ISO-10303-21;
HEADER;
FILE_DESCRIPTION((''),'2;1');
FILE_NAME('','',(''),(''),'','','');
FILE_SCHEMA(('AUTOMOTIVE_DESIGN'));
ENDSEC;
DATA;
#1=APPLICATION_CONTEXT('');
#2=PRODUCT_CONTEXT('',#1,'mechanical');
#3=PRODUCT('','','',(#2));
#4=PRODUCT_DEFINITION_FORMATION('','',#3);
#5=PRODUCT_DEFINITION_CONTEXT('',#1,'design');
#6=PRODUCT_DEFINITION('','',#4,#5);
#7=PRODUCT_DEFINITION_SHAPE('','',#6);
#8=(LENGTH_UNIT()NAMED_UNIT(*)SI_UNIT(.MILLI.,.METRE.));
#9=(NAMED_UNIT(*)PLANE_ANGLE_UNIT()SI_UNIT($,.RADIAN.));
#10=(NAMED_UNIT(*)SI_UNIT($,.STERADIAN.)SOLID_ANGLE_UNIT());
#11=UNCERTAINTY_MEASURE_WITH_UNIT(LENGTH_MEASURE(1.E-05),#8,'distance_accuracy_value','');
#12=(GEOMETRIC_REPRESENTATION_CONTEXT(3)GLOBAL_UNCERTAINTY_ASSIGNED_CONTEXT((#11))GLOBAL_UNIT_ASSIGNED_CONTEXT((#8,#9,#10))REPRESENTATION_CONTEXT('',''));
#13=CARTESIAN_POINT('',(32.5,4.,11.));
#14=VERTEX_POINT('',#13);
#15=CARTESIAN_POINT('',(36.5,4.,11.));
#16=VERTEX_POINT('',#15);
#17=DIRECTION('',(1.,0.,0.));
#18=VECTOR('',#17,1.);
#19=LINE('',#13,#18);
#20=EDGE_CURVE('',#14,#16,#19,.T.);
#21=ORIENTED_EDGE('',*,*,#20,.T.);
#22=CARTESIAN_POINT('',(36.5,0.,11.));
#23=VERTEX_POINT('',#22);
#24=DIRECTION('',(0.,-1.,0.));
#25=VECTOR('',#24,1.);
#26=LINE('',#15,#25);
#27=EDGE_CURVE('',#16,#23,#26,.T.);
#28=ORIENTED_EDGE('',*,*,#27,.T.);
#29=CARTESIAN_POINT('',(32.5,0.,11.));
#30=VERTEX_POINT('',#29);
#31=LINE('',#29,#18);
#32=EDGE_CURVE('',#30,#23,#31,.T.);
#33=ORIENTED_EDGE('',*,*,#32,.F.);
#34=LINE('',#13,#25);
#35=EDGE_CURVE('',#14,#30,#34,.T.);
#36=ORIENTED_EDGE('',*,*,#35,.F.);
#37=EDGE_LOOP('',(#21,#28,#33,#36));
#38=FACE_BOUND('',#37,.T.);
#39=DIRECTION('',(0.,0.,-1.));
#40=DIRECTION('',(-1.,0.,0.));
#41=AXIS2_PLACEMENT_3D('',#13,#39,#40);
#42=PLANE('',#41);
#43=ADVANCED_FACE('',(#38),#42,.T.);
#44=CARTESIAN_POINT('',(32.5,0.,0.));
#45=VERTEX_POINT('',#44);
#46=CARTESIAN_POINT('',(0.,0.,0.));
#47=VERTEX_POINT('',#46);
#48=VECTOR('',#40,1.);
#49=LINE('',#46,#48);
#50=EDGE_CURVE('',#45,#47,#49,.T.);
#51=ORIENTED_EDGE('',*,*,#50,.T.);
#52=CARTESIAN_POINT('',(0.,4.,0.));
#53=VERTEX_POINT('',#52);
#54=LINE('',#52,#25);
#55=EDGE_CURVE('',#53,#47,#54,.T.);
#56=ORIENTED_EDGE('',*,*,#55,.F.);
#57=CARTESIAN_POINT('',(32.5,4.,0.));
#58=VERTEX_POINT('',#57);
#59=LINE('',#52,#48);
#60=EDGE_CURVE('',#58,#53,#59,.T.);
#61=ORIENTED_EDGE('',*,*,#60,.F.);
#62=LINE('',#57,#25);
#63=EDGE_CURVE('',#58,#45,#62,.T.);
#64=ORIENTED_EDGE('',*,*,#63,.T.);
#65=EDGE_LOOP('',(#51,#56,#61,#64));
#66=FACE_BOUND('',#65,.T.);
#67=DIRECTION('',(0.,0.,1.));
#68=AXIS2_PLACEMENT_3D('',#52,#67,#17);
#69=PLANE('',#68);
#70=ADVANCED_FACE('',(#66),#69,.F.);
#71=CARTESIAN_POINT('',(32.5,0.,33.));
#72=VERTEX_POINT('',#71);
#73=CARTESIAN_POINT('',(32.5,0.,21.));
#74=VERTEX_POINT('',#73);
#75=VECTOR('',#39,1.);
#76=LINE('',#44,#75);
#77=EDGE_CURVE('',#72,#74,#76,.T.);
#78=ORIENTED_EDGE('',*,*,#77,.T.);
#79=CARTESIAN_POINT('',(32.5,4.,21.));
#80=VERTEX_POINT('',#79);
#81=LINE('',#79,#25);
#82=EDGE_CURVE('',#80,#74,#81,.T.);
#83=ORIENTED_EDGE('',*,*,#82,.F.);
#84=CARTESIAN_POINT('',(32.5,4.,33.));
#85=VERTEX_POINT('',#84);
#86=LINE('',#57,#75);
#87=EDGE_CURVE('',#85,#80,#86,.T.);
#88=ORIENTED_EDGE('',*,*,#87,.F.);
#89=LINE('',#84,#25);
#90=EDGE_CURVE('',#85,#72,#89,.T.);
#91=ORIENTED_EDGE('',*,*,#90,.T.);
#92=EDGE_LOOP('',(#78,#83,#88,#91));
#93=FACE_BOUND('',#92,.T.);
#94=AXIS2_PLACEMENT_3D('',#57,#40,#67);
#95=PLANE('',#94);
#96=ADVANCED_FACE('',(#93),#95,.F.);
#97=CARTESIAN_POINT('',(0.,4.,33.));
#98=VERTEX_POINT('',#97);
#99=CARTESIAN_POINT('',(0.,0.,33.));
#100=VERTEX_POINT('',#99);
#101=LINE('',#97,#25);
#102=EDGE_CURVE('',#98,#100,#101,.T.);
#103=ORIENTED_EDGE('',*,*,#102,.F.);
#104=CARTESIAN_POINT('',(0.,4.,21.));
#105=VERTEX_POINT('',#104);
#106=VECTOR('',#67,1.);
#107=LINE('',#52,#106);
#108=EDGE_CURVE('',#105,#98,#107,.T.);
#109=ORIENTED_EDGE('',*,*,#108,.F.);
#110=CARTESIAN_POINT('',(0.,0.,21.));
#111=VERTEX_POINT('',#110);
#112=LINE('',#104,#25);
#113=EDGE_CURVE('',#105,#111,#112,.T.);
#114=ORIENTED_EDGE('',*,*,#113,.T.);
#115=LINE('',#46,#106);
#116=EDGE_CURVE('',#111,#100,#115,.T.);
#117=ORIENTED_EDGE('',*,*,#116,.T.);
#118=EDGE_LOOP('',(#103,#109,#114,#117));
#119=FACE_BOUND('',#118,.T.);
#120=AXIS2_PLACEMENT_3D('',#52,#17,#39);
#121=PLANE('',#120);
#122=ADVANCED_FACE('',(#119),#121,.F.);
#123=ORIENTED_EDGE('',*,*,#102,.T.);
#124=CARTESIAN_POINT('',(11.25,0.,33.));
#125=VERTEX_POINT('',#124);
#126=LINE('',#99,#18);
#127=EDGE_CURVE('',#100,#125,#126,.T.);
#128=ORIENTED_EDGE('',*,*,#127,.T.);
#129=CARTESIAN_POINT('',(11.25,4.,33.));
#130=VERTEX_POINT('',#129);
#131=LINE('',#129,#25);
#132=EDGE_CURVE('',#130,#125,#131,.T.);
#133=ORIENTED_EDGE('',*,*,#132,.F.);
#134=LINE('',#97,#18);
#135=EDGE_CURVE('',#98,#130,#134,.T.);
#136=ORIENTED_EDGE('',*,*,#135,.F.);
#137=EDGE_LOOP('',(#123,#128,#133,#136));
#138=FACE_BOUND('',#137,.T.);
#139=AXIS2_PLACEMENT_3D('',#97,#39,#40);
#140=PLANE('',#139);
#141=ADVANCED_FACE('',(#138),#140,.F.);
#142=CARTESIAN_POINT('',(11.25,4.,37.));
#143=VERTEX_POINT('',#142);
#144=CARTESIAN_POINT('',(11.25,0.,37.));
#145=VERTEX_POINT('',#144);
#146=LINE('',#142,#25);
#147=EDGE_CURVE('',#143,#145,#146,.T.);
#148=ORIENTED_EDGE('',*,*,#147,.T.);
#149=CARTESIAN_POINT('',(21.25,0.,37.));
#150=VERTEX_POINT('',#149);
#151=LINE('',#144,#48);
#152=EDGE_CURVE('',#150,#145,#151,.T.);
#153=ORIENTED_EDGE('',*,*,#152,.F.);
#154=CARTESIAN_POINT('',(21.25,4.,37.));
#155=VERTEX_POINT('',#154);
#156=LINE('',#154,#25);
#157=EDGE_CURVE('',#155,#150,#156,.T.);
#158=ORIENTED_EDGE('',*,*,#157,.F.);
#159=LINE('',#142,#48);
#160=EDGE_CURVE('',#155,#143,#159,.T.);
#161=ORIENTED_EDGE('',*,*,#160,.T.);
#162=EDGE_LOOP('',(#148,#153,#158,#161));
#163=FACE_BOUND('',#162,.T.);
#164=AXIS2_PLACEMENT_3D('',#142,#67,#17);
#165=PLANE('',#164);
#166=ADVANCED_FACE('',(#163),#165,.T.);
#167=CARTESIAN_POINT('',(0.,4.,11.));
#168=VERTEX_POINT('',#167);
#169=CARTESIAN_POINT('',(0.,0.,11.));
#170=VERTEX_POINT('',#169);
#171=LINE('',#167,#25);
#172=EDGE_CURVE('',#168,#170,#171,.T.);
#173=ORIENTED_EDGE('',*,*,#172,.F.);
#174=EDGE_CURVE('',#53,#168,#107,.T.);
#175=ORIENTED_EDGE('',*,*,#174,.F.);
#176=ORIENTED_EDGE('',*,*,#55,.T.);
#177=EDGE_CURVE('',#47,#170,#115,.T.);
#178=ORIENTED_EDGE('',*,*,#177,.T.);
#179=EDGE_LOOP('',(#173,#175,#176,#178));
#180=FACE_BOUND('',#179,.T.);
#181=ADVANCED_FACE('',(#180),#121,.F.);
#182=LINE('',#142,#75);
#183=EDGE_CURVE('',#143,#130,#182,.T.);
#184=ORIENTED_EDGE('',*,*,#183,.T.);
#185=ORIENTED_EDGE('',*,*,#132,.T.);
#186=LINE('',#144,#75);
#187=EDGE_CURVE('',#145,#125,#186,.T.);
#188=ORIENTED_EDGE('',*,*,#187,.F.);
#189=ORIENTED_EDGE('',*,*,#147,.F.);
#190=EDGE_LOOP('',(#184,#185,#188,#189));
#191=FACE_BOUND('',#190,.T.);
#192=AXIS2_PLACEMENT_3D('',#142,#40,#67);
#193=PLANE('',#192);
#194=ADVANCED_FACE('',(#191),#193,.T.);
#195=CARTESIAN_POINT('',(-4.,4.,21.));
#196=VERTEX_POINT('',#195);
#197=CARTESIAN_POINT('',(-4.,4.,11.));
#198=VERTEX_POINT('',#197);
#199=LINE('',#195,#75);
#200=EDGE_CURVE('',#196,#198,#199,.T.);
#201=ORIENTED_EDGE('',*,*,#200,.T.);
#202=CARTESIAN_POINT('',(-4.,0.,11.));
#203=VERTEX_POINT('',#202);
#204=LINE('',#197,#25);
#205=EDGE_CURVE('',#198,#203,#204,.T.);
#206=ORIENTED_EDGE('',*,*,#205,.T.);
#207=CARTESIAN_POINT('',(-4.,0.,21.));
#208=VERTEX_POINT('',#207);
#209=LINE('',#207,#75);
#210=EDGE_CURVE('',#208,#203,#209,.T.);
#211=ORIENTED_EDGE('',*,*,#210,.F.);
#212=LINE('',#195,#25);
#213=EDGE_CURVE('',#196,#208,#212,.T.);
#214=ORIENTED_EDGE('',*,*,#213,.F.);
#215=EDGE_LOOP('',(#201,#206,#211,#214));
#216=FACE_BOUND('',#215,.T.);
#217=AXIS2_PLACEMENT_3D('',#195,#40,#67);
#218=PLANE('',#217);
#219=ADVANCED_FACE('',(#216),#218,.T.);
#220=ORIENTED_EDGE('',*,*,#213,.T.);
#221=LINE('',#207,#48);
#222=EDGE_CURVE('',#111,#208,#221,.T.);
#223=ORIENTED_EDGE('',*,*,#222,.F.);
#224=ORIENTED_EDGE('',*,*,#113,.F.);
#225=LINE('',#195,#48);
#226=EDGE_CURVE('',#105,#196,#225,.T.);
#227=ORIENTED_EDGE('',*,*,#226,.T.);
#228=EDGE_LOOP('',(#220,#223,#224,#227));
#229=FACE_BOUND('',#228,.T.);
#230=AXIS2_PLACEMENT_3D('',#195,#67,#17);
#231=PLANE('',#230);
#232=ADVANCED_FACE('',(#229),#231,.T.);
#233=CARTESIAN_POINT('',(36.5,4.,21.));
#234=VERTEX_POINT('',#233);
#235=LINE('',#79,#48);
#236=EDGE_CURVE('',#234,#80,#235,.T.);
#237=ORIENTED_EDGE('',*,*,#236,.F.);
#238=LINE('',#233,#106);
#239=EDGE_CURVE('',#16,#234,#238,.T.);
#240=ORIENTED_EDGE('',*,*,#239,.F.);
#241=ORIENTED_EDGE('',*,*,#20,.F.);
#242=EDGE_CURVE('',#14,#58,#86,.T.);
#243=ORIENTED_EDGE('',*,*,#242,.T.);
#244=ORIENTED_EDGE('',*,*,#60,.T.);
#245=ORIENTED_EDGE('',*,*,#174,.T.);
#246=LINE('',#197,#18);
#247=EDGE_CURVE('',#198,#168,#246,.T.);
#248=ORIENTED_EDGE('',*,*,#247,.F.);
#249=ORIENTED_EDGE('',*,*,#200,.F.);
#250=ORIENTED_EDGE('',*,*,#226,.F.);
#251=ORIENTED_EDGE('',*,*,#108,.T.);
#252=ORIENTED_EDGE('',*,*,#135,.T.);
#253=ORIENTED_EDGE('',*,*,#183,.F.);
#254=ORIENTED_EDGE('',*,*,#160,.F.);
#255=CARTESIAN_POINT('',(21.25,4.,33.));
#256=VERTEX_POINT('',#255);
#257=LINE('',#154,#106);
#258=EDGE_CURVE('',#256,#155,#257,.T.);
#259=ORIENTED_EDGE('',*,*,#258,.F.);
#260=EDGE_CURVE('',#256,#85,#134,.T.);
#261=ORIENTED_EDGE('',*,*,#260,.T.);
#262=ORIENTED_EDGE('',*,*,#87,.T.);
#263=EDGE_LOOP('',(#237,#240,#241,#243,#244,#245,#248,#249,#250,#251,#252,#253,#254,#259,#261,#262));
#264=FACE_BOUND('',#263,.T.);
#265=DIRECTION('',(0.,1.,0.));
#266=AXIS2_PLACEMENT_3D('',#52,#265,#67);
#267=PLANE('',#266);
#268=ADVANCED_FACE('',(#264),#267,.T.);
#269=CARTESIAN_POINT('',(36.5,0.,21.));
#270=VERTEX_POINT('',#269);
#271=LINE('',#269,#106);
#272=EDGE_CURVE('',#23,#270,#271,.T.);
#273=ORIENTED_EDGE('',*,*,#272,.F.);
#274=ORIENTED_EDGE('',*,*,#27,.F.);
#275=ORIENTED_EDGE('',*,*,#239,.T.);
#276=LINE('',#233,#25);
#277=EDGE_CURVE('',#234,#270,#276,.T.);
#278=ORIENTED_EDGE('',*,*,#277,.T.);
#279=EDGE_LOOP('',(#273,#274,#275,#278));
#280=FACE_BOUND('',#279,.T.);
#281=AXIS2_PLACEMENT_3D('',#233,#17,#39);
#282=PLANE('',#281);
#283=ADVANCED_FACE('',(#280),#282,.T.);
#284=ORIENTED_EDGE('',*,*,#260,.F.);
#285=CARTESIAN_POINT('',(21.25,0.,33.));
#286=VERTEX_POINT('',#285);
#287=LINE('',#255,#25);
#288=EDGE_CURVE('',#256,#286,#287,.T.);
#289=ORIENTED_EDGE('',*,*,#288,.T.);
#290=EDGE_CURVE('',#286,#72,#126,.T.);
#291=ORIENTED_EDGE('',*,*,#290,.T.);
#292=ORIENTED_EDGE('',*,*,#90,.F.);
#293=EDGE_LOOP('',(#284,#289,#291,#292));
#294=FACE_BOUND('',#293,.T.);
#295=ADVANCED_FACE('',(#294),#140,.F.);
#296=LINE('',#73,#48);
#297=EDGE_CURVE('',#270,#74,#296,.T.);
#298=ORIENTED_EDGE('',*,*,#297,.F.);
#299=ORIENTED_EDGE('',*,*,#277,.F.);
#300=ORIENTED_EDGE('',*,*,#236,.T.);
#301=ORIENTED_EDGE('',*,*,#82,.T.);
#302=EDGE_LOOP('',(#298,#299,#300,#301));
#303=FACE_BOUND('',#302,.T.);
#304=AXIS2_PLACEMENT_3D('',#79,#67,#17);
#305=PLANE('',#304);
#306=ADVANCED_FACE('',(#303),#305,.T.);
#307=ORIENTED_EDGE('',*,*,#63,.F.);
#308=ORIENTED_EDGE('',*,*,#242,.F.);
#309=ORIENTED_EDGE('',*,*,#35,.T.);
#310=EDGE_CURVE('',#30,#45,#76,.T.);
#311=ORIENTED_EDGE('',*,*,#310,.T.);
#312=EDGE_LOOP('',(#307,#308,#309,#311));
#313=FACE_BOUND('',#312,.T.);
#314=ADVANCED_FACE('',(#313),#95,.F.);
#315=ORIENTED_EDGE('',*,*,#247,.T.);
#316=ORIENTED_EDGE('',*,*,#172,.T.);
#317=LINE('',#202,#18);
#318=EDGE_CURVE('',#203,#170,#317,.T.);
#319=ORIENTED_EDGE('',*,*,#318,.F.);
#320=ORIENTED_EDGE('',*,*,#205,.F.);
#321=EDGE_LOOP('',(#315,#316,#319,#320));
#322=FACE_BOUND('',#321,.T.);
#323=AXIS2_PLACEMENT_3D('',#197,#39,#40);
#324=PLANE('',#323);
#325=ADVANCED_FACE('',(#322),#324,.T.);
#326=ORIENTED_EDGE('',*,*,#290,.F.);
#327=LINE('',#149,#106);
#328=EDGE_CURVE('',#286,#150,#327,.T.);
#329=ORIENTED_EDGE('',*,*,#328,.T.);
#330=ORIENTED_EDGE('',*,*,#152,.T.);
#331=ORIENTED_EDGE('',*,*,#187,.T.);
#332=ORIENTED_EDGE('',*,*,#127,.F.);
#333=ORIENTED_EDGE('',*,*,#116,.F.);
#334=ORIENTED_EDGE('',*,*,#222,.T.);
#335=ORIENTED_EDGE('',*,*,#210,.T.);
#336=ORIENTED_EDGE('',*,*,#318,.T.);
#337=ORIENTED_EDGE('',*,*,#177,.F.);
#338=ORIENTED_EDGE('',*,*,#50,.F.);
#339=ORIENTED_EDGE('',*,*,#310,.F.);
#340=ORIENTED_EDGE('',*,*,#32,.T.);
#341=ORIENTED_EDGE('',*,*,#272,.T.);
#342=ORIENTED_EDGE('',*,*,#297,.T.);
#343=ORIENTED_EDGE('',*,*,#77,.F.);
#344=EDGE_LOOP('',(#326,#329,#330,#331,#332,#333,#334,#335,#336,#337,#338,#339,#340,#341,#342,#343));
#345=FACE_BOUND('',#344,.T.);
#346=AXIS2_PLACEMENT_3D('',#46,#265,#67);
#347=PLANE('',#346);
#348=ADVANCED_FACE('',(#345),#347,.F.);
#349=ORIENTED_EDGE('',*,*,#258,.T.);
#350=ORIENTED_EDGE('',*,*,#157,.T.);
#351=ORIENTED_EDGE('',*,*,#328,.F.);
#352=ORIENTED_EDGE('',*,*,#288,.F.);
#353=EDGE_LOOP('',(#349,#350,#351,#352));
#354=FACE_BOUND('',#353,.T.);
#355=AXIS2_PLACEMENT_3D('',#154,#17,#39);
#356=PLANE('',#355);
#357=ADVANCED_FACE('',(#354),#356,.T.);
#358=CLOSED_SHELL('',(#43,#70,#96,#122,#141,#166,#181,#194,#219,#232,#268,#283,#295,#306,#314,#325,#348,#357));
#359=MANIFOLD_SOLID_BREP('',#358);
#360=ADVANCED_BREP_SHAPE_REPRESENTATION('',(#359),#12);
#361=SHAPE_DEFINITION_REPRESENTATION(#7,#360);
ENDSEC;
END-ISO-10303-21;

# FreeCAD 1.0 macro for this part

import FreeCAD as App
import Part
import Sketcher
from FreeCAD import Vector


def add_polygon(sketch, points):
    """Adds a closed chain of lines whose ends are joined by coincident constraints."""
    first, n = sketch.GeometryCount, len(points)
    for a, b in zip(points, points[1:] + points[:1]):
        sketch.addGeometry(Part.LineSegment(App.Vector(*a, 0), App.Vector(*b, 0)), False)
    for i in range(n):
        sketch.addConstraint(Sketcher.Constraint("Coincident", first + i, 2, first + (i + 1) % n, 1))

doc = App.newDocument("Part")
params = doc.addObject("Spreadsheet::Sheet", "Params")
for row, (alias, value) in enumerate([
    ("sketch1_height", "33 mm"),
    ("sketch1_width", "32.5 mm"),
    ("pad1_length", "4 mm"),
    ("sketch2_width", "10 mm"),
    ("sketch2_width2", "4 mm"),
], start=1):
    params.set(f"A{row}", alias)
    params.set(f"B{row}", "=" + value)
    params.setAlias(f"B{row}", alias)

body = doc.addObject("PartDesign::Body", "Body")

# Sketch on XZ plane
sketch1 = doc.addObject("Sketcher::SketchObject", "Sketch")
body.addObject(sketch1)
sketch1.AttachmentSupport = (doc.XZ_Plane, [""])
sketch1.MapMode = "FlatFace"
add_polygon(sketch1, [(0, 0), (0, 33), (32, 33), (32, 0)])  # lines 0-3
sketch1.addConstraint(Sketcher.Constraint("Vertical", 0))
sketch1.addConstraint(Sketcher.Constraint("Horizontal", 1))
sketch1.addConstraint(Sketcher.Constraint("Vertical", 2))
sketch1.addConstraint(Sketcher.Constraint("Horizontal", 3))
sketch1.addConstraint(Sketcher.Constraint("Coincident", 3, 2, -1, 1))
sketch1.addConstraint(Sketcher.Constraint("DistanceY", 0, 1, 0, 2, 33.0))
sketch1.addConstraint(Sketcher.Constraint("DistanceX", 1, 1, 1, 2, 32.5))
sketch1.setExpression("Constraints[9]", "Params.sketch1_height")
sketch1.setExpression("Constraints[10]", "Params.sketch1_width")
pad1 = doc.addObject("PartDesign::Pad", "Pad")
body.addObject(pad1)
pad1.Profile = sketch1
pad1.setExpression("Length", "Params.pad1_length")
pad1.Reversed = True

# Sketch on XZ plane
sketch2 = doc.addObject("Sketcher::SketchObject", "Sketch001")
body.addObject(sketch2)
sketch2.AttachmentSupport = (doc.XZ_Plane, [""])
sketch2.MapMode = "FlatFace"
add_polygon(sketch2, [(11.2, 37), (11.2, 33), (21.2, 33), (21.2, 37)])  # lines 0-3
add_polygon(sketch2, [(32.5, 21), (32.5, 11), (36.5, 11), (36.5, 21)])  # lines 4-7
add_polygon(sketch2, [(-4, 21), (-4, 11), (0, 11), (0, 21)])  # lines 8-11
sketch2.addConstraint(Sketcher.Constraint("Vertical", 0))
sketch2.addConstraint(Sketcher.Constraint("Horizontal", 1))
sketch2.addConstraint(Sketcher.Constraint("Vertical", 2))
sketch2.addConstraint(Sketcher.Constraint("Horizontal", 3))
sketch2.addConstraint(Sketcher.Constraint("Vertical", 4))
sketch2.addConstraint(Sketcher.Constraint("Horizontal", 5))
sketch2.addConstraint(Sketcher.Constraint("Vertical", 6))
sketch2.addConstraint(Sketcher.Constraint("Horizontal", 7))
sketch2.addConstraint(Sketcher.Constraint("Vertical", 8))
sketch2.addConstraint(Sketcher.Constraint("Horizontal", 9))
sketch2.addConstraint(Sketcher.Constraint("Vertical", 10))
sketch2.addConstraint(Sketcher.Constraint("Horizontal", 11))
sketch2.addConstraint(Sketcher.Constraint("PointOnObject", 9, 2, -2))
sketch2.addConstraint(Sketcher.Constraint("Horizontal", 5, 2, 8, 2))
sketch2.addConstraint(Sketcher.Constraint("Horizontal", 7, 2, 10, 2))
sketch2.addConstraint(Sketcher.Constraint("Equal", 7, 9))
sketch2.addConstraint(Sketcher.Constraint("Equal", 11, 0))
sketch2.addConstraint(Sketcher.Constraint("Equal", 3, 4))
sketch2.addConstraint(Sketcher.Constraint("DistanceX", 1, 1, 1, 2, 10.0))
sketch2.addConstraint(Sketcher.Constraint("DistanceX", 5, 1, 5, 2, 4.0))
sketch2.addConstraint(Sketcher.Constraint("DistanceY", -1, 1, 0, 2, 33.0))
sketch2.addConstraint(Sketcher.Constraint("DistanceY", -1, 1, 4, 2, 11.0))
sketch2.addConstraint(Sketcher.Constraint("DistanceX", -1, 1, 4, 2, 32.5))
sketch2.addConstraint(Sketcher.Constraint("DistanceX", -1, 1, 0, 2, 11.25))
sketch2.setExpression("Constraints[30]", "Params.sketch2_width")
sketch2.setExpression("Constraints[31]", "Params.sketch2_width2")
pad2 = doc.addObject("PartDesign::Pad", "Pad001")
body.addObject(pad2)
pad2.Profile = sketch2
pad2.Type = "UpToLast"
pad2.Reversed = True

doc.recompute()
